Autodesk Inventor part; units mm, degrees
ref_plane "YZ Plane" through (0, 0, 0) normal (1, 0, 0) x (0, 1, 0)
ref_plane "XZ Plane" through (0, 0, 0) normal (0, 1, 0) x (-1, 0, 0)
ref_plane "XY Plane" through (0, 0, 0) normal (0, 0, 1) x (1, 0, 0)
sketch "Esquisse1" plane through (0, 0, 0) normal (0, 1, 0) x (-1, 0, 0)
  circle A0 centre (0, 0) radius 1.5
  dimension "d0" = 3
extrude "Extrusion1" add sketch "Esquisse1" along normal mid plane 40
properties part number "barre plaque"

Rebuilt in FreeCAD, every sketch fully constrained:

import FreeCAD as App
import Part
import Sketcher

doc = App.newDocument("Part")
body = doc.addObject("PartDesign::Body", "Body")

# Sketch on XZ plane
sketch1 = body.newObject("Sketcher::SketchObject", "Sketch")
sketch1.AttachmentSupport = (doc.getObject("XZ_Plane"), [""])
sketch1.MapMode = "FlatFace"
sketch1.addGeometry(Part.Circle(App.Vector(0, 0, 0), App.Vector(0, 0, 1), 1.5), False)
sketch1.addConstraint(Sketcher.Constraint("Coincident", 0, 3, -1, 1))
sketch1.addConstraint(Sketcher.Constraint("Diameter", 0, 3.0))
pad1 = body.newObject("PartDesign::Pad", "Pad")
pad1.Profile = sketch1
pad1.Length = 40
pad1.Midplane = True

doc.recompute()
